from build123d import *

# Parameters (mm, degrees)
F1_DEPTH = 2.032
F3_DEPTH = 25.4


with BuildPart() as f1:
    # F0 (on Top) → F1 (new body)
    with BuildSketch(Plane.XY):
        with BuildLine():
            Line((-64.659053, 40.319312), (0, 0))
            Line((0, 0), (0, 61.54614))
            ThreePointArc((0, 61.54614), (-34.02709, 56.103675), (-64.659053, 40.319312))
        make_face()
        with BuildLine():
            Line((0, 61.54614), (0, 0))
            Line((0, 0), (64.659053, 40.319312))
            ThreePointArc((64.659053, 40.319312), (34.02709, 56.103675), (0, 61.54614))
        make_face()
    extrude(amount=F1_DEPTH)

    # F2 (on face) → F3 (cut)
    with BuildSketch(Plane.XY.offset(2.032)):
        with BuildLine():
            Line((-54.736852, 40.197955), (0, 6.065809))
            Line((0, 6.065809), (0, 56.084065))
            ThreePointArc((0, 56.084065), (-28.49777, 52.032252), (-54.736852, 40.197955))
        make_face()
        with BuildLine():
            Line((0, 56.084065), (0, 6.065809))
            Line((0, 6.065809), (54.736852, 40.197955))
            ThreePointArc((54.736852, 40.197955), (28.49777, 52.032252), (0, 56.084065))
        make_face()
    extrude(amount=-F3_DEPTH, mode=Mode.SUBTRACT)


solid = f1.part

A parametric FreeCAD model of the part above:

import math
import FreeCAD as App
import Part
import Sketcher
Q = App.Units.Quantity

doc = App.newDocument("Part")
body = doc.addObject("PartDesign::Body", "Body")

sketch1 = body.newObject("Sketcher::SketchObject", "Sketch")
sketch1.AttachmentSupport = (doc.getObject("XY_Plane"), [""])
sketch1.MapMode = "FlatFace"
sketch1.addGeometry(Part.LineSegment(App.Vector(-65, 40, 0), App.Vector(0, 0, 0)), False)
sketch1.addGeometry(Part.LineSegment(App.Vector(0, 0, 0), App.Vector(65, 40, 0)), False)
sketch1.addGeometry(Part.ArcOfCircle(Part.Circle(App.Vector(0, -48, 0), App.Vector(0, 0, 1), 109), math.radians(54), math.radians(90)), False)
sketch1.addGeometry(Part.ArcOfCircle(Part.Circle(App.Vector(0, -48, 0), App.Vector(0, 0, 1), 109), math.radians(90), math.radians(126)), False)
sketch1.addConstraint(Sketcher.Constraint("Coincident", 0, 2, 1, 1))
sketch1.addConstraint(Sketcher.Constraint("Coincident", 1, 2, 2, 1))
sketch1.addConstraint(Sketcher.Constraint("Tangent", 2, 2, 3, 1))
sketch1.addConstraint(Sketcher.Constraint("Coincident", 3, 2, 0, 1))
sketch1.addConstraint(Sketcher.Constraint("Coincident", 0, 2, -1, 1))
sketch1.addConstraint(Sketcher.Constraint("Equal", 2, 3))
sketch1.addConstraint(Sketcher.Constraint("Symmetric", 1, 2, 3, 2, -2))
sketch1.addConstraint(Sketcher.Constraint("PointOnObject", 2, 2, -2))
sketch1.addConstraint(Sketcher.Constraint("Distance", 0, Q("3 in")))
sketch1.addConstraint(Sketcher.Constraint("Radius", 2, Q("109.092394 mm")))
sketch1.addConstraint(Sketcher.Constraint("DistanceY", -1, 1, 1, 2, Q("40.319312 mm")))
pad1 = body.newObject("PartDesign::Pad", "Pad")
pad1.Profile = sketch1
pad1.Length = Q("0.08 in")

sketch2 = body.newObject("Sketcher::SketchObject", "Sketch001")
sketch2.AttachmentSupport = (doc.getObject("XY_Plane"), [""])
sketch2.MapMode = "FlatFace"
sketch2.AttachmentOffset = App.Placement(App.Vector(0, 0, 0.08 * 25.4), App.Rotation())
sketch2.addGeometry(Part.LineSegment(App.Vector(-55, 40, 0), App.Vector(0, 6, 0)), False)
sketch2.addGeometry(Part.LineSegment(App.Vector(0, 6, 0), App.Vector(55, 40, 0)), False)
sketch2.addGeometry(Part.ArcOfCircle(Part.Circle(App.Vector(0, -46, 0), App.Vector(0, 0, 1), 102), math.radians(58), math.radians(90)), False)
sketch2.addGeometry(Part.ArcOfCircle(Part.Circle(App.Vector(0, -46, 0), App.Vector(0, 0, 1), 102), math.radians(90), math.radians(122)), False)
sketch2.addConstraint(Sketcher.Constraint("Coincident", 0, 2, 1, 1))
sketch2.addConstraint(Sketcher.Constraint("Coincident", 1, 2, 2, 1))
sketch2.addConstraint(Sketcher.Constraint("Tangent", 2, 2, 3, 1))
sketch2.addConstraint(Sketcher.Constraint("Coincident", 3, 2, 0, 1))
sketch2.addConstraint(Sketcher.Constraint("Equal", 2, 3))
sketch2.addConstraint(Sketcher.Constraint("Symmetric", 1, 2, 3, 2, -2))
sketch2.addConstraint(Sketcher.Constraint("PointOnObject", 0, 2, -2))
sketch2.addConstraint(Sketcher.Constraint("PointOnObject", 2, 2, -2))
sketch2.addConstraint(Sketcher.Constraint("Radius", 2, Q("102.243145 mm")))
sketch2.addConstraint(Sketcher.Constraint("DistanceY", 2, 3, -1, 1, Q("46.15908 mm")))
sketch2.addConstraint(Sketcher.Constraint("DistanceY", -1, 1, 0, 2, Q("6.065809 mm")))
sketch2.addConstraint(Sketcher.Constraint("DistanceX", 3, 2, -1, 1, Q("54.736852 mm")))
pocket1 = body.newObject("PartDesign::Pocket", "Pocket")
pocket1.Profile = sketch2
pocket1.Length = Q("1 in")

doc.recompute()
